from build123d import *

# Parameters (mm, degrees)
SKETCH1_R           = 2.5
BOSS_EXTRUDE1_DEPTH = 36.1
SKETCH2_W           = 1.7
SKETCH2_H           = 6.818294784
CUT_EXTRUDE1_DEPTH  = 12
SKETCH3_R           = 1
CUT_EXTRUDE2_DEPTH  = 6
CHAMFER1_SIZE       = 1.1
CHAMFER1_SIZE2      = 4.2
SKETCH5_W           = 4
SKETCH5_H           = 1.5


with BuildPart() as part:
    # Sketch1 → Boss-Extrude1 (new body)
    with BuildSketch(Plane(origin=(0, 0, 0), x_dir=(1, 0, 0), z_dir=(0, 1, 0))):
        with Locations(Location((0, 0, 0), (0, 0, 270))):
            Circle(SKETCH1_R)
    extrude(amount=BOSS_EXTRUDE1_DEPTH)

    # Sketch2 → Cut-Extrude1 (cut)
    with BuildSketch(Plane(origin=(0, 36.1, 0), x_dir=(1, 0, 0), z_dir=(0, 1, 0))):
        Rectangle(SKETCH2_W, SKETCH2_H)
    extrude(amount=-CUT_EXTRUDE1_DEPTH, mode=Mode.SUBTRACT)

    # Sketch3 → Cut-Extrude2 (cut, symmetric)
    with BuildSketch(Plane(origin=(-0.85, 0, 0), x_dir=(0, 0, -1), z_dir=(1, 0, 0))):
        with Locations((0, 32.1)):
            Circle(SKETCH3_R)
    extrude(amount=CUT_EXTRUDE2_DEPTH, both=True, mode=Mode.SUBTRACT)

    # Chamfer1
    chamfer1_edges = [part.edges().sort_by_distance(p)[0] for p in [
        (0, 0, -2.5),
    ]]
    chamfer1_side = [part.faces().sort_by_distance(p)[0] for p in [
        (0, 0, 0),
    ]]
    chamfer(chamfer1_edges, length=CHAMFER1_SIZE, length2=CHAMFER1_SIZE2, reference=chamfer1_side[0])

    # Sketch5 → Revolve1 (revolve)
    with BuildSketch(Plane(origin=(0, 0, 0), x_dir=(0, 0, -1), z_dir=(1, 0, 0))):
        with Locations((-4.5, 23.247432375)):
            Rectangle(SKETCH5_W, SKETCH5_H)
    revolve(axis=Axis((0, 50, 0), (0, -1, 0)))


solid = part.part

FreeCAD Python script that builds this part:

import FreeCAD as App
import Part
import Sketcher
from FreeCAD import Vector
Q = App.Units.Quantity


def edges_at(feature, points):
    """Names of the edges that pass closest to the given points."""
    edges = feature.Shape.Edges
    near = lambda p: min(range(len(edges)), key=lambda i: edges[i].distToShape(Part.Vertex(*p))[0])
    return sorted({f"Edge{near(p) + 1}" for p in points})

doc = App.newDocument("Part")
body = doc.addObject("PartDesign::Body", "Body")

sketch1 = doc.addObject("Sketcher::SketchObject", "Sketch")
body.addObject(sketch1)
sketch1.AttachmentSupport = (doc.XZ_Plane, [""])
sketch1.MapMode = "FlatFace"
sketch1.addGeometry(Part.Circle(Vector(0, 0, 0), Vector(0, 0, 1), 2.5), False)
sketch1.addConstraint(Sketcher.Constraint("Coincident", 0, 3, -1, 1))
sketch1.addConstraint(Sketcher.Constraint("Diameter", 0, Q("5 mm")))
pad1 = doc.addObject("PartDesign::Pad", "Pad")
body.addObject(pad1)
pad1.Profile = sketch1
pad1.Length = 36.1
pad1.Reversed = True

sketch2 = doc.addObject("Sketcher::SketchObject", "Sketch001")
body.addObject(sketch2)
sketch2.AttachmentSupport = (doc.XZ_Plane, [""])
sketch2.MapMode = "FlatFace"
sketch2.AttachmentOffset = App.Placement(Vector(0, 0, -36.1), App.Rotation())
sketch2.addGeometry(Part.LineSegment(Vector(-0.8, -3.4, 0), Vector(-0.8, 3.4, 0)), False)
sketch2.addGeometry(Part.LineSegment(Vector(-0.8, 3.4, 0), Vector(0.8, 3.4, 0)), False)
sketch2.addGeometry(Part.LineSegment(Vector(0.8, 3.4, 0), Vector(0.8, -3.4, 0)), False)
sketch2.addGeometry(Part.LineSegment(Vector(0.8, -3.4, 0), Vector(-0.8, -3.4, 0)), False)
sketch2.addConstraint(Sketcher.Constraint("Coincident", 0, 2, 1, 1))
sketch2.addConstraint(Sketcher.Constraint("Coincident", 1, 2, 2, 1))
sketch2.addConstraint(Sketcher.Constraint("Coincident", 2, 2, 3, 1))
sketch2.addConstraint(Sketcher.Constraint("Coincident", 3, 2, 0, 1))
sketch2.addConstraint(Sketcher.Constraint("Vertical", 0))
sketch2.addConstraint(Sketcher.Constraint("Horizontal", 1))
sketch2.addConstraint(Sketcher.Constraint("Vertical", 2))
sketch2.addConstraint(Sketcher.Constraint("Horizontal", 3))
sketch2.addConstraint(Sketcher.Constraint("Symmetric", 0, 2, 2, 2, -1, 1))
sketch2.addConstraint(Sketcher.Constraint("DistanceX", 1, 1, 1, 2, Q("1.7 mm")))
sketch2.addConstraint(Sketcher.Constraint("DistanceY", 0, 1, 0, 2, Q("6.818295 mm")))
pocket1 = doc.addObject("PartDesign::Pocket", "Pocket")
body.addObject(pocket1)
pocket1.Profile = sketch2
pocket1.Length = 12
pocket1.Reversed = True

sketch3 = doc.addObject("Sketcher::SketchObject", "Sketch002")
body.addObject(sketch3)
sketch3.AttachmentSupport = (doc.YZ_Plane, [""])
sketch3.MapMode = "FlatFace"
sketch3.AttachmentOffset = App.Placement(Vector(0, 0, -0.85), App.Rotation())
sketch3.addGeometry(Part.Circle(Vector(32.1, 0, 0), Vector(0, 0, 1), 1), False)
sketch3.addConstraint(Sketcher.Constraint("PointOnObject", 0, 3, -1))
sketch3.addConstraint(Sketcher.Constraint("Diameter", 0, Q("2 mm")))
sketch3.addConstraint(Sketcher.Constraint("DistanceX", -1, 1, 0, 3, Q("32.1 mm")))
pocket2 = doc.addObject("PartDesign::Pocket", "Pocket001")
body.addObject(pocket2)
pocket2.Profile = sketch3
pocket2.Length = 12
pocket2.Midplane = True
doc.recompute()

chamfer = doc.addObject("PartDesign::Chamfer", "Chamfer")
body.addObject(chamfer)
chamfer.Base = (pocket2, edges_at(pocket2, [(0, 0, -2.5)]))
chamfer.ChamferType = "Two distances"
chamfer.Size = 1.1
chamfer.Size2 = 4.2
chamfer.FlipDirection = True

sketch4 = doc.addObject("Sketcher::SketchObject", "Sketch003")
body.addObject(sketch4)
sketch4.AttachmentSupport = (doc.YZ_Plane, [""])
sketch4.MapMode = "FlatFace"
sketch4.addGeometry(Part.LineSegment(Vector(24, 6.5, 0), Vector(22.5, 6.5, 0)), False)
sketch4.addGeometry(Part.LineSegment(Vector(22.5, 6.5, 0), Vector(22.5, 2.5, 0)), False)
sketch4.addGeometry(Part.LineSegment(Vector(22.5, 2.5, 0), Vector(24, 2.5, 0)), False)
sketch4.addGeometry(Part.LineSegment(Vector(24, 2.5, 0), Vector(24, 6.5, 0)), False)
sketch4.addConstraint(Sketcher.Constraint("Coincident", 0, 2, 1, 1))
sketch4.addConstraint(Sketcher.Constraint("Coincident", 1, 2, 2, 1))
sketch4.addConstraint(Sketcher.Constraint("Coincident", 2, 2, 3, 1))
sketch4.addConstraint(Sketcher.Constraint("Coincident", 3, 2, 0, 1))
sketch4.addConstraint(Sketcher.Constraint("Horizontal", 0))
sketch4.addConstraint(Sketcher.Constraint("Vertical", 1))
sketch4.addConstraint(Sketcher.Constraint("Horizontal", 2))
sketch4.addConstraint(Sketcher.Constraint("Vertical", 3))
sketch4.addConstraint(Sketcher.Constraint("DistanceY", 1, 2, 1, 1, Q("4 mm")))
sketch4.addConstraint(Sketcher.Constraint("DistanceX", 0, 2, 0, 1, Q("1.5 mm")))
sketch4.addConstraint(Sketcher.Constraint("DistanceY", -1, 1, 0, 2, Q("6.5 mm")))
sketch4.addConstraint(Sketcher.Constraint("DistanceX", -1, 1, 0, 2, Q("22.497432 mm")))
revolution = doc.addObject("PartDesign::Revolution", "Revolution")
body.addObject(revolution)
revolution.Profile = sketch4
revolution.ReferenceAxis = (sketch4, ["H_Axis"])
revolution.Angle = 360

doc.recompute()
